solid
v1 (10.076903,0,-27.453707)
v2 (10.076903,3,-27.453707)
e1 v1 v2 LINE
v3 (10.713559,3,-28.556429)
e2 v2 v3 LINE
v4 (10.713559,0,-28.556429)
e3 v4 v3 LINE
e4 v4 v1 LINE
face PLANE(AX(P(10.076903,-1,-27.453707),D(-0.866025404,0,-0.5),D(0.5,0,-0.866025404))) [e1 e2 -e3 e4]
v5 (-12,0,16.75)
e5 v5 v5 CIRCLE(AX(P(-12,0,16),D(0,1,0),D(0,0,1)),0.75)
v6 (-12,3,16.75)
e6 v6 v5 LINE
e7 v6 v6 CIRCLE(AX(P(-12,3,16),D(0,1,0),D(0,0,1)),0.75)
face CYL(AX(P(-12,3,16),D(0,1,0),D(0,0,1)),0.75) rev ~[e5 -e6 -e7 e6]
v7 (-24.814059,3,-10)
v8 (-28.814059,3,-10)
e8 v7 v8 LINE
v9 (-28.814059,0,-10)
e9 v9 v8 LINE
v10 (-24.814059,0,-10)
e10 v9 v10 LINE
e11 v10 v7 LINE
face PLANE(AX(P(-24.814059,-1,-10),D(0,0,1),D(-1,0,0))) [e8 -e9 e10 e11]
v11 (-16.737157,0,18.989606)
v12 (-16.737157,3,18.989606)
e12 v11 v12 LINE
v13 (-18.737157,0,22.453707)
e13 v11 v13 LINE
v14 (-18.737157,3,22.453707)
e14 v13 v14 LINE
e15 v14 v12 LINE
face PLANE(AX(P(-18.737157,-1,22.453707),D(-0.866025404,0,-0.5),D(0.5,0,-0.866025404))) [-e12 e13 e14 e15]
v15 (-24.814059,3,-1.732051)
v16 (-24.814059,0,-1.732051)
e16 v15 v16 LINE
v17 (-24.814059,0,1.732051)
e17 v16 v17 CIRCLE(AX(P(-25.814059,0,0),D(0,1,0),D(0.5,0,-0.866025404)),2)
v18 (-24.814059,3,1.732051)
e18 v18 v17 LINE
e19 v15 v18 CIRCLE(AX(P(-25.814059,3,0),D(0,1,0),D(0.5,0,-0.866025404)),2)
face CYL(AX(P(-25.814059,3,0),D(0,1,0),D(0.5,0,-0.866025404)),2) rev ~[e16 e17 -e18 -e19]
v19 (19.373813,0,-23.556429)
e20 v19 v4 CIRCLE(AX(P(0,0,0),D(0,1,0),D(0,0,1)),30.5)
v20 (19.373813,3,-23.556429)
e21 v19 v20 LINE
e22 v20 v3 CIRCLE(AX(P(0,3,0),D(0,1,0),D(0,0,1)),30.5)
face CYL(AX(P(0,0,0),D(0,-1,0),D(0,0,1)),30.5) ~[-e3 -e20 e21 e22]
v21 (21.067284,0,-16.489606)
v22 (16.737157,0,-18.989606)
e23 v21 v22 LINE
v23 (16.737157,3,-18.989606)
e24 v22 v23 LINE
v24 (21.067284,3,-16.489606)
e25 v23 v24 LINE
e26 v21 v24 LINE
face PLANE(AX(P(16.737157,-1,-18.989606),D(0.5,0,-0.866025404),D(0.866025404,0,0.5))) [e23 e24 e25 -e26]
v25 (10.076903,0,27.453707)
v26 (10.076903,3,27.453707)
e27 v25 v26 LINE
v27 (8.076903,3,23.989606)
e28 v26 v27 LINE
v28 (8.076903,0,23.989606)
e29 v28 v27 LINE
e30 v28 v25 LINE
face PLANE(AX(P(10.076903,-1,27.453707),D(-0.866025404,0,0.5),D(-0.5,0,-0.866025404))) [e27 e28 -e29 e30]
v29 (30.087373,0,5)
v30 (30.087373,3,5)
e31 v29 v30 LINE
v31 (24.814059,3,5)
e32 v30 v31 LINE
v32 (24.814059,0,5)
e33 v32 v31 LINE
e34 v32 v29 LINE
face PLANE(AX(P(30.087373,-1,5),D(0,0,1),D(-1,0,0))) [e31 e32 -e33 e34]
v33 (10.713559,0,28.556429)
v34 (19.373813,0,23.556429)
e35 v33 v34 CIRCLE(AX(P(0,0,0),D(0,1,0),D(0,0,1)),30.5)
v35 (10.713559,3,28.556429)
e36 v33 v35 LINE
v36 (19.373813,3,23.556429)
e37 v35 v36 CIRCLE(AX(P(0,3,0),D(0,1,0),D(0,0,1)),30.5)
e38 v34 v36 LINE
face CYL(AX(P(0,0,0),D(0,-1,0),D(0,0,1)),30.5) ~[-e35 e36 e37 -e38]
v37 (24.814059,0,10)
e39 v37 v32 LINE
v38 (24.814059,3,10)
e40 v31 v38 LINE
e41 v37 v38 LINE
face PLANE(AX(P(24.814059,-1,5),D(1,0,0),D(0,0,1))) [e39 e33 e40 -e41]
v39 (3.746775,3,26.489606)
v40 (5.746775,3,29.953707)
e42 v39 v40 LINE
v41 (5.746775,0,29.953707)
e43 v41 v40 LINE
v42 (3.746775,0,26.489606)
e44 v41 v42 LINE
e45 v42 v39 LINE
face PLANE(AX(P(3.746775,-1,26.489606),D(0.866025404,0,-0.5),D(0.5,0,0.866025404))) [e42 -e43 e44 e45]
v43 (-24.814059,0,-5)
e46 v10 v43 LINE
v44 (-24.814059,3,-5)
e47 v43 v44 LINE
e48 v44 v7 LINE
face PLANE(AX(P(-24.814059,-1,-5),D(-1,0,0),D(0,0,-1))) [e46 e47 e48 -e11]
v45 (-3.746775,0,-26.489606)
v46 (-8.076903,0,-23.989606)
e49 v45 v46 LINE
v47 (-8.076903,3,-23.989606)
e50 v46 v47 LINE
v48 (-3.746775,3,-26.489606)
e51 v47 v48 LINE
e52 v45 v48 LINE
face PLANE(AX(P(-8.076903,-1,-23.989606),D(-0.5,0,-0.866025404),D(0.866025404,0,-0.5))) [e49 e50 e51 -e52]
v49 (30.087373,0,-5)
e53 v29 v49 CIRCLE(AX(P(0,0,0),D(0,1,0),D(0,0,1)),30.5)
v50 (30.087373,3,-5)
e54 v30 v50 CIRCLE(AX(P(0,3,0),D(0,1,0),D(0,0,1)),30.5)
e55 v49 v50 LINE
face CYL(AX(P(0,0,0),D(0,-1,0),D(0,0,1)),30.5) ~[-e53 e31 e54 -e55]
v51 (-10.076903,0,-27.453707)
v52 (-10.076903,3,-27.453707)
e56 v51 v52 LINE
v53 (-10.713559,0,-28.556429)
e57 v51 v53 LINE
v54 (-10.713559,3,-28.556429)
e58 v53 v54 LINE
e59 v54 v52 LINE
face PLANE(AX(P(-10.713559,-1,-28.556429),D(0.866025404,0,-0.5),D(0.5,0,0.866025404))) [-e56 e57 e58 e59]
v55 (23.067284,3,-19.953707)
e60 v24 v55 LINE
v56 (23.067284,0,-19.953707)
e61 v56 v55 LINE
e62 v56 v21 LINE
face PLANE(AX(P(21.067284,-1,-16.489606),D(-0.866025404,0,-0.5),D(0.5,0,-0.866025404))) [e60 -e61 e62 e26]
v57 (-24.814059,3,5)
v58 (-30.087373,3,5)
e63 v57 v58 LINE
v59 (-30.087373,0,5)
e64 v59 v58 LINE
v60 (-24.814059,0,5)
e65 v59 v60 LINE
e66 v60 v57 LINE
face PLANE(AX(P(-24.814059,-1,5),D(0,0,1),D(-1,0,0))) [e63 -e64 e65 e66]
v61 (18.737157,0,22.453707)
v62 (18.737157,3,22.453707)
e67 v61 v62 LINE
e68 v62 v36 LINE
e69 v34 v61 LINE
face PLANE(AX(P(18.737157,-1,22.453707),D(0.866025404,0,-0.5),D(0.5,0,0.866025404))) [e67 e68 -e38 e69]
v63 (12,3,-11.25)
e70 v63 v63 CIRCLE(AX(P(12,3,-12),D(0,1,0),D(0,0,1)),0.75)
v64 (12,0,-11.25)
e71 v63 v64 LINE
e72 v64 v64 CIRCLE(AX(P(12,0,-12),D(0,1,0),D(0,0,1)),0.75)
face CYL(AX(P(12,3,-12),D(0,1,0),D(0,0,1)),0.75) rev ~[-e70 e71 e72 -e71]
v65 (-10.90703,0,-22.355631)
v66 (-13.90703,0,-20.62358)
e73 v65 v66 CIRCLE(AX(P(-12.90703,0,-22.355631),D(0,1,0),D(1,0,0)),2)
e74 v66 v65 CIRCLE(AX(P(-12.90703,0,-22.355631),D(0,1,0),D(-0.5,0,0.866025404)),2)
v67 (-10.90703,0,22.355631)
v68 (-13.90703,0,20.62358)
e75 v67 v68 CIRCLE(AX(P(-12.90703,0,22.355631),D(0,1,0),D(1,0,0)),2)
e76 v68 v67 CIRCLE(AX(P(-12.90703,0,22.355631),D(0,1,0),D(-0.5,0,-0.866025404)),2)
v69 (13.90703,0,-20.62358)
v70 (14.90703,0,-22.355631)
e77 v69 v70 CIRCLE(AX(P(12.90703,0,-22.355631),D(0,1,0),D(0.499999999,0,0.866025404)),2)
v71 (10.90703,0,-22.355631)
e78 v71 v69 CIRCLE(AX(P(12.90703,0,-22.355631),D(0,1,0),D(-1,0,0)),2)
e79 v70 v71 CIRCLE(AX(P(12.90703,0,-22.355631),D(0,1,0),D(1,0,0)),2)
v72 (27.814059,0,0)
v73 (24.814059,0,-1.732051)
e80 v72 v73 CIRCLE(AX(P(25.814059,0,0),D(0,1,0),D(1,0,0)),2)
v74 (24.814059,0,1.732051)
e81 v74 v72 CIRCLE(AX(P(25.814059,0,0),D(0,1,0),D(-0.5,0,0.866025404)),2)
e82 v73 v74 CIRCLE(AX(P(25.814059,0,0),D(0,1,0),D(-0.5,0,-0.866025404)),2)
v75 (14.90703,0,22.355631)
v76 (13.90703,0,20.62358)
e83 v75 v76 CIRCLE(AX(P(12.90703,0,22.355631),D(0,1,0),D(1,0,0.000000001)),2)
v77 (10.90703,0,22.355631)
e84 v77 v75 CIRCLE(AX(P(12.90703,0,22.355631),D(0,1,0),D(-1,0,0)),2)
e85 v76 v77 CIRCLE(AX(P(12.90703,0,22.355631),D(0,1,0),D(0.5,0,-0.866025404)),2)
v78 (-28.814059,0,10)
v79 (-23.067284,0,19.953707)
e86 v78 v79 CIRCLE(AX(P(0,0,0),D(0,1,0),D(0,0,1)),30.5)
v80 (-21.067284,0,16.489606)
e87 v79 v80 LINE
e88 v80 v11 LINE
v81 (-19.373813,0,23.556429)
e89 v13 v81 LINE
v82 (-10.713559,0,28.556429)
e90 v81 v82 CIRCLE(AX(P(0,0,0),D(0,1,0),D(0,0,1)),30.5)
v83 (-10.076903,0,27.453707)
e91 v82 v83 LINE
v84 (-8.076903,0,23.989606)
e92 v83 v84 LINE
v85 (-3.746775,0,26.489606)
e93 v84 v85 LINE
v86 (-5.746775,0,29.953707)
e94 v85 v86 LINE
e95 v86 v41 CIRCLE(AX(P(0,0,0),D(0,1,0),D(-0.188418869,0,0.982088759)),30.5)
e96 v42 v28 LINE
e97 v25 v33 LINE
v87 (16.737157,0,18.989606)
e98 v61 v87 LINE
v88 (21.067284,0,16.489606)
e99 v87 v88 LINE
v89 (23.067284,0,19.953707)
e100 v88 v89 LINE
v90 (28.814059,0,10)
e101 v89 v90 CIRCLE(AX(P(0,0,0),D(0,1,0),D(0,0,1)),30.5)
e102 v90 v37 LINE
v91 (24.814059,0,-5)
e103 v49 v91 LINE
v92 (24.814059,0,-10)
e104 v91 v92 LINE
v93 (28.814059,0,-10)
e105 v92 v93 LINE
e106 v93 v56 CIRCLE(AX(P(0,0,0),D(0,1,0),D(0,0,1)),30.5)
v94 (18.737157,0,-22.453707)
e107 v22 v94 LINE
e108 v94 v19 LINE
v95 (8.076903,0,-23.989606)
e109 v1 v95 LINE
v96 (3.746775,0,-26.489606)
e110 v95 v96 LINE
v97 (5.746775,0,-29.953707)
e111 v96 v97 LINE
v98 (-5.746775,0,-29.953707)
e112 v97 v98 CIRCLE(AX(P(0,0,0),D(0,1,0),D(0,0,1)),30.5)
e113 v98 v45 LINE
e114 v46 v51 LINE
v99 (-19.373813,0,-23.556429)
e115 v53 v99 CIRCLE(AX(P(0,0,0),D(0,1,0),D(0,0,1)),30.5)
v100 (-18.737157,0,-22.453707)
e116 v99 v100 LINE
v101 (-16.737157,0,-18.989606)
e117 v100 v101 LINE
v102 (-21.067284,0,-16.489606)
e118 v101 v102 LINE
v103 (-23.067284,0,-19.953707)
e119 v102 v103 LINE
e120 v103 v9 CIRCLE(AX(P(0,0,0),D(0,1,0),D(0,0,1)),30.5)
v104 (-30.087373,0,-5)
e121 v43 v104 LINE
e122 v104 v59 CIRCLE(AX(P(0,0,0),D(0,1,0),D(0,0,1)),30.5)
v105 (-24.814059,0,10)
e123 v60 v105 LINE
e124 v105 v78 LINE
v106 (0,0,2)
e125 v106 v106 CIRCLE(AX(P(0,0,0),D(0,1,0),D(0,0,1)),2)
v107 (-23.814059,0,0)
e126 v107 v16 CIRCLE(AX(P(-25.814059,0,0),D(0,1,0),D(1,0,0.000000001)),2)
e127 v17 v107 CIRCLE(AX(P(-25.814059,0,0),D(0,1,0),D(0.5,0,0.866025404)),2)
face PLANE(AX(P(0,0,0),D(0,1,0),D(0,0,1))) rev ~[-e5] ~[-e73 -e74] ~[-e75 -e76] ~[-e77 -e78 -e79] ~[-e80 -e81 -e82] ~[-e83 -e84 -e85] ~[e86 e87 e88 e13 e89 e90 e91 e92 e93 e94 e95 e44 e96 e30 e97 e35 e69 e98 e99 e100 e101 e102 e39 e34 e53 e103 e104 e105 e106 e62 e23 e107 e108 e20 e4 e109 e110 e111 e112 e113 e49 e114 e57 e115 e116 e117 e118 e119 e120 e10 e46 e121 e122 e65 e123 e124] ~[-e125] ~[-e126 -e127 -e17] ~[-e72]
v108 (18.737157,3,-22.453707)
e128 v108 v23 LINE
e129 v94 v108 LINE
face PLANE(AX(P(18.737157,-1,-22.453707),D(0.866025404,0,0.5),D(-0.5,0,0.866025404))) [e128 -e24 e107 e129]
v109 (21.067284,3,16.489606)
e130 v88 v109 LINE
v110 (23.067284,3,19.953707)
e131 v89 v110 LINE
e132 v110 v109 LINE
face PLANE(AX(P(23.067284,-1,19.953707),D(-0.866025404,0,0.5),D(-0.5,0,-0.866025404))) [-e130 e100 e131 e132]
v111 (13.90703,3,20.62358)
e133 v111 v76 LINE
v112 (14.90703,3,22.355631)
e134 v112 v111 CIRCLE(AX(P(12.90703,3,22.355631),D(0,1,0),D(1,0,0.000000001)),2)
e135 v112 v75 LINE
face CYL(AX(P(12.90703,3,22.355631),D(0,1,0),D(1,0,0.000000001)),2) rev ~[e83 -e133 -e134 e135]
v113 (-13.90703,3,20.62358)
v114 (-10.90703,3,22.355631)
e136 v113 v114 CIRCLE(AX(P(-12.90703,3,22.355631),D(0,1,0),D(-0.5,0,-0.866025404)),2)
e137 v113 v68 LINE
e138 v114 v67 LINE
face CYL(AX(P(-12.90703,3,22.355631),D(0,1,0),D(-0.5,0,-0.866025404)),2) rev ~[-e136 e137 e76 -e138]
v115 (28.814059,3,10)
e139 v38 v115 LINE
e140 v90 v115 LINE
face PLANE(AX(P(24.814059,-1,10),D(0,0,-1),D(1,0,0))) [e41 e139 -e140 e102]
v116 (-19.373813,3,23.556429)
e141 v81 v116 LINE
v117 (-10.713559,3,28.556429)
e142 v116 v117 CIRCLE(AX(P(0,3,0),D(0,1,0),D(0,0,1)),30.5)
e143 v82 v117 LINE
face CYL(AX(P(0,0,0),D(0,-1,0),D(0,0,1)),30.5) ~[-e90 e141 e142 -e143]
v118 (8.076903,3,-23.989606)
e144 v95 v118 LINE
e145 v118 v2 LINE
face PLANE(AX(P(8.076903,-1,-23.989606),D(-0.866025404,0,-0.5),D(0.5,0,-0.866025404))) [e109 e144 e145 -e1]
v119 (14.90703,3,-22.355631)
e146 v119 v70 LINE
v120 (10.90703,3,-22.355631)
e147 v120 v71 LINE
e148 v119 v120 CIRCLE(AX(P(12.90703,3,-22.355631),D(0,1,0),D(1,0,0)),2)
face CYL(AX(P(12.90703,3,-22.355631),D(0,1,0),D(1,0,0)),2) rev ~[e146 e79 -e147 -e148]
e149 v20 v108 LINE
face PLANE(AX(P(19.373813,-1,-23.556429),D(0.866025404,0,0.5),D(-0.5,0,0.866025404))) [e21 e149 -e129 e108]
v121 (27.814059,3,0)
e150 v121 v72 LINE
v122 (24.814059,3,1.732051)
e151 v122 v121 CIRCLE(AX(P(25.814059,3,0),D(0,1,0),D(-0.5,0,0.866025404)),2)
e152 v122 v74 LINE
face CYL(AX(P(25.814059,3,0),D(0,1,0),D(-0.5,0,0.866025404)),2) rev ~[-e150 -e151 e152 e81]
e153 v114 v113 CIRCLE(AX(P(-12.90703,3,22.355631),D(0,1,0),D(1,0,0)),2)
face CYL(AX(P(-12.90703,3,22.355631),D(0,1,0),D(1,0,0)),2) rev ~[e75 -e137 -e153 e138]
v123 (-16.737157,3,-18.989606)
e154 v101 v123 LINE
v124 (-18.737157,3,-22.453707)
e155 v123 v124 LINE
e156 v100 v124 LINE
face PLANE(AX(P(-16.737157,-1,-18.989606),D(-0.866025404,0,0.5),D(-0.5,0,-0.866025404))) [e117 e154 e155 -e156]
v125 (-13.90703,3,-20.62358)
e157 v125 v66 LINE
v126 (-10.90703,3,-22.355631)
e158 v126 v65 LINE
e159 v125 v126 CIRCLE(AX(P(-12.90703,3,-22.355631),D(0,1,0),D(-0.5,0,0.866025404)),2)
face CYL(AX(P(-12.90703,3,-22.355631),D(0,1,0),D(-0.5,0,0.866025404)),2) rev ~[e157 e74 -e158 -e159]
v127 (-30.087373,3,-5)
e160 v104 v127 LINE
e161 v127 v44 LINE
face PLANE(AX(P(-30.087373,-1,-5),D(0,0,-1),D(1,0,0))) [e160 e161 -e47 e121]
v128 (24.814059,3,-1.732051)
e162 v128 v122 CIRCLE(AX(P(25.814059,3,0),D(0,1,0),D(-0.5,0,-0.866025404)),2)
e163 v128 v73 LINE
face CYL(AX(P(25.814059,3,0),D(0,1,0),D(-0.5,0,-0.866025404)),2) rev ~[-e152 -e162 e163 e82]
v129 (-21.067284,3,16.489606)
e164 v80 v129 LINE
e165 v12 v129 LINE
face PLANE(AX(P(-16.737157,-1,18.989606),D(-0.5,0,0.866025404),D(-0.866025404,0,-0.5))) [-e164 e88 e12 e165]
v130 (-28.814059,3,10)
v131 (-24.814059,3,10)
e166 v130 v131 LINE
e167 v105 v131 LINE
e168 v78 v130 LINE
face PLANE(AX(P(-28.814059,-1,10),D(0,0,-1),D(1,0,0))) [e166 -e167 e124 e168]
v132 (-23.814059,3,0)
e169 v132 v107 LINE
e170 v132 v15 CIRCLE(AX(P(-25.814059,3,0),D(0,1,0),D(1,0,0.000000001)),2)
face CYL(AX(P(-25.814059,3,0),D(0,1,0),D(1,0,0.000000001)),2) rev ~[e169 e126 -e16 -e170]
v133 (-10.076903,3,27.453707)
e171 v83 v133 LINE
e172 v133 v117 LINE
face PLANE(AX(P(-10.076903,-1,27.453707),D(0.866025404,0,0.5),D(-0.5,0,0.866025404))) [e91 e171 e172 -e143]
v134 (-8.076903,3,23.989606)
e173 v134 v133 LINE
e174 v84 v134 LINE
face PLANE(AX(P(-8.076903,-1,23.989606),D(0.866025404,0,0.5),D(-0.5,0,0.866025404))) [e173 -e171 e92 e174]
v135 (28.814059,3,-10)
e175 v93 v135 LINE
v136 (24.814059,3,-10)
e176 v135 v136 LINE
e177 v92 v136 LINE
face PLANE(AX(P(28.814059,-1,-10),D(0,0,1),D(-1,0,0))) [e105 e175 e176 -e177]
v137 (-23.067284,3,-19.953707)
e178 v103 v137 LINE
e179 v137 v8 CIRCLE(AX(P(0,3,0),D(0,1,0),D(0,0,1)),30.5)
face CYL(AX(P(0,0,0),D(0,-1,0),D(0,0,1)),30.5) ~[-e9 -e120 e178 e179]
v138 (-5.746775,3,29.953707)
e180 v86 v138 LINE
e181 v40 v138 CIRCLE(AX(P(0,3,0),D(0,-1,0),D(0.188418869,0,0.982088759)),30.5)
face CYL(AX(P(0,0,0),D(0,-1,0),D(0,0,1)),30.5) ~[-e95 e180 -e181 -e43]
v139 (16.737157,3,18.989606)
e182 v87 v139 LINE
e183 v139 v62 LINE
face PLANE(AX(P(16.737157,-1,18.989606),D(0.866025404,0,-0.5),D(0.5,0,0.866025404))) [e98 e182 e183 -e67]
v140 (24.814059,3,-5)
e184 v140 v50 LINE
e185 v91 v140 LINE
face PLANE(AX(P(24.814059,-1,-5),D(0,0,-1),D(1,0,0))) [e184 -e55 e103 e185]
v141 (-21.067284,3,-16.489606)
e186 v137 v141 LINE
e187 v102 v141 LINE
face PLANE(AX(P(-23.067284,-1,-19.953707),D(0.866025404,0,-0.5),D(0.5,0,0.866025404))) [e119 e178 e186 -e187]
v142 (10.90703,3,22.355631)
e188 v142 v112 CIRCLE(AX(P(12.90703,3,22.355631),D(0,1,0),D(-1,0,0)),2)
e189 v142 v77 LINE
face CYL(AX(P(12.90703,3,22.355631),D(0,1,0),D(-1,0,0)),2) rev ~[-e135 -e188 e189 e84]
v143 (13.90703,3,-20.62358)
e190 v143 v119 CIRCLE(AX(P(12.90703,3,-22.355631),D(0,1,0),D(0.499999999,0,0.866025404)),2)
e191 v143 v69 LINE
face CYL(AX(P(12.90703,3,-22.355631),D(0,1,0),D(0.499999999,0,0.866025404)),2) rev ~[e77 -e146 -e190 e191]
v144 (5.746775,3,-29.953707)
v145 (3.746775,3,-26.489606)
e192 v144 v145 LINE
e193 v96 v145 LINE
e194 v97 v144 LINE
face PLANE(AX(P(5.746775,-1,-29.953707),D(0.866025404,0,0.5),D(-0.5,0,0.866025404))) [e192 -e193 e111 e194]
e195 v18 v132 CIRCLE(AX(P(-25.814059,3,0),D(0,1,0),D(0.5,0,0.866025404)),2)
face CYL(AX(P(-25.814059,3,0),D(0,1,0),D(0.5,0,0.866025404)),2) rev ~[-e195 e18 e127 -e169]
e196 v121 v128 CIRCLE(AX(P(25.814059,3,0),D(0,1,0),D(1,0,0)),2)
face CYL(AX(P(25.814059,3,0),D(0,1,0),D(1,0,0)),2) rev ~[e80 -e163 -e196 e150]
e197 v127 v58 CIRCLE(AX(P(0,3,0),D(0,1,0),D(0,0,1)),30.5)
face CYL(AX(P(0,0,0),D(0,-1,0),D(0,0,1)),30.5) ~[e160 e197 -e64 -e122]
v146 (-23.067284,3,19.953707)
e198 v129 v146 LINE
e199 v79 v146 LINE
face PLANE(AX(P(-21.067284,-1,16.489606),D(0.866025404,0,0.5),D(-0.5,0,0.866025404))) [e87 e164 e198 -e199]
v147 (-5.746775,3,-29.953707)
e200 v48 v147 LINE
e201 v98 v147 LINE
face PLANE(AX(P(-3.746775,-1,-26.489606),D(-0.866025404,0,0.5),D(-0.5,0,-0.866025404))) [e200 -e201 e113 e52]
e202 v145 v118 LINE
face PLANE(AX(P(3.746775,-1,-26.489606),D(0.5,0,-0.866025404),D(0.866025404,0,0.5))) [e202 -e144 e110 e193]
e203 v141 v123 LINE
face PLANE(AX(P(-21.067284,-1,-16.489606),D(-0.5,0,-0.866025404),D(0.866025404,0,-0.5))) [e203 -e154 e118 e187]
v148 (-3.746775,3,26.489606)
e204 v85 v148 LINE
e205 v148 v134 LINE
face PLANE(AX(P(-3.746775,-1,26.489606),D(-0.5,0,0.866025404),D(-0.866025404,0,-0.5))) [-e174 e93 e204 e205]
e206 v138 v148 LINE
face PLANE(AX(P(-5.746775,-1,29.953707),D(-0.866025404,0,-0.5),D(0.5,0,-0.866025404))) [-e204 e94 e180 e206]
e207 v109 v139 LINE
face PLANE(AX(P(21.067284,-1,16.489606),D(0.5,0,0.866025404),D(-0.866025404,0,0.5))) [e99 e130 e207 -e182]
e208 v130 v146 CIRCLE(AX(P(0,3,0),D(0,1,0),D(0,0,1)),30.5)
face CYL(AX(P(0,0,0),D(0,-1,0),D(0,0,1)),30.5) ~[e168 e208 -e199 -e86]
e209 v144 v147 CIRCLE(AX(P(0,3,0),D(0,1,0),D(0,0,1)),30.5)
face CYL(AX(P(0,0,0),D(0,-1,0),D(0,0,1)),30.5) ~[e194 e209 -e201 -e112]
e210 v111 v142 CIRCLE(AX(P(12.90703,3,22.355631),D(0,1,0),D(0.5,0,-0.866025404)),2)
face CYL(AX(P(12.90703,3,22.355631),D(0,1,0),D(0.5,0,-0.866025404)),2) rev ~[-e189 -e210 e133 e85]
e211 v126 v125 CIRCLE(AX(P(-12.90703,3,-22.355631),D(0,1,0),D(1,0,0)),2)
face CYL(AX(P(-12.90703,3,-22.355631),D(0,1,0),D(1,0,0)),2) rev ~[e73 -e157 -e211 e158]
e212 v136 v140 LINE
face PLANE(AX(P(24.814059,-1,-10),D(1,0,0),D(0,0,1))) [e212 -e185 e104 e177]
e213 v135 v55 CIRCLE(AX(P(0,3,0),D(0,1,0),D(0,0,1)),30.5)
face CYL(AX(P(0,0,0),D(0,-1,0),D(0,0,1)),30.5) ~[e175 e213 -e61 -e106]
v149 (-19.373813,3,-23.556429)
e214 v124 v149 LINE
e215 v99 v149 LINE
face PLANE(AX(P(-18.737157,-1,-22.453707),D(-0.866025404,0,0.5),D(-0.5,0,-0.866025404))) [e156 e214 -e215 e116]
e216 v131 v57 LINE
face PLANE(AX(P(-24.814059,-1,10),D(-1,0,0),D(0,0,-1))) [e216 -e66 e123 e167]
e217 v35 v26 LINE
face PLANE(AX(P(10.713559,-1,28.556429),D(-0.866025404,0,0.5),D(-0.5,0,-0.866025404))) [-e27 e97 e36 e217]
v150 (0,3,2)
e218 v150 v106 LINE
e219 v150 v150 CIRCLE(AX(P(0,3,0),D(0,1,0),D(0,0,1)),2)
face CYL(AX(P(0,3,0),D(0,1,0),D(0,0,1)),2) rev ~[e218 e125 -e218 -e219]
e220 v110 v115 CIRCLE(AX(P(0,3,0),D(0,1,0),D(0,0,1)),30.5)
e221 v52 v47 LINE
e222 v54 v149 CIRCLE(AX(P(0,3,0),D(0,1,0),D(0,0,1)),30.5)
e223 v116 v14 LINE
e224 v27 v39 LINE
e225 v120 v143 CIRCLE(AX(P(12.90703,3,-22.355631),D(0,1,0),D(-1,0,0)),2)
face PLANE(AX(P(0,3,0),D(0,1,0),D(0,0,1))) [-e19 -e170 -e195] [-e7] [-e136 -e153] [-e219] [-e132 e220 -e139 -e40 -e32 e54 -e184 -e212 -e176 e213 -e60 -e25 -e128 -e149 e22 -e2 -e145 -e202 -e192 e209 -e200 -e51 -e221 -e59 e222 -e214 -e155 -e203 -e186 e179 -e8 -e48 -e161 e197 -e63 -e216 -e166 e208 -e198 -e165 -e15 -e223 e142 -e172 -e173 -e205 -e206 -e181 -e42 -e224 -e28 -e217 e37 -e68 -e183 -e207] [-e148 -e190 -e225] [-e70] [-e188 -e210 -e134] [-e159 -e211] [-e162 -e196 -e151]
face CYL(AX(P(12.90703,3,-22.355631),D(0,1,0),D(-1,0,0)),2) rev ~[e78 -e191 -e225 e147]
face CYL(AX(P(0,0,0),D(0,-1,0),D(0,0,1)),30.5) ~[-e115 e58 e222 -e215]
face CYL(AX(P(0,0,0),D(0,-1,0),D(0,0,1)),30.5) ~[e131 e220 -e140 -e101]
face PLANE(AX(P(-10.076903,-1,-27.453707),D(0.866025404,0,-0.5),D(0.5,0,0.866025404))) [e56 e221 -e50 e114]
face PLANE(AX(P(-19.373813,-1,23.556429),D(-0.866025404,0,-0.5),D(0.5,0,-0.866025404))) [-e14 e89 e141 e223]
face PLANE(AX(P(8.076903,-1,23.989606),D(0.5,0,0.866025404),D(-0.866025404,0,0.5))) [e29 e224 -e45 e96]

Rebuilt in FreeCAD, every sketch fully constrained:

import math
import FreeCAD as App
import Part
import Sketcher
Q = App.Units.Quantity

doc = App.newDocument("Part")
body = doc.addObject("PartDesign::Body", "Body")

sketch1 = body.newObject("Sketcher::SketchObject", "Sketch")
sketch1.AttachmentSupport = (doc.getObject("XZ_Plane"), [""])
sketch1.MapMode = "FlatFace"
sketch1.addGeometry(Part.Circle(App.Vector(0, 0, 0), App.Vector(0, 0, 1), 30), False)
sketch1.addConstraint([
    Sketcher.Constraint("Coincident", 0, 3, -1, 1),
    Sketcher.Constraint("Diameter", 0, Q("61 mm")),
])
pad1 = body.newObject("PartDesign::Pad", "Pad")
pad1.Profile = sketch1
pad1.Length = 3
pad1.Reversed = True

sketch2 = body.newObject("Sketcher::SketchObject", "Sketch001")
sketch2.AttachmentSupport = (doc.getObject("XZ_Plane"), [""])
sketch2.MapMode = "FlatFace"
sketch2.AttachmentOffset = App.Placement(App.Vector(0, 0, -3), App.Rotation())
sketch2.addGeometry(Part.Circle(App.Vector(0, 0, 0), App.Vector(0, 0, 1), 2), False)
sketch2.addConstraint([
    Sketcher.Constraint("Coincident", 0, 3, -1, 1),
    Sketcher.Constraint("Diameter", 0, Q("4 mm")),
])
pocket1 = body.newObject("PartDesign::Pocket", "Pocket")
pocket1.Profile = sketch2
pocket1.Length = 4
pocket1.Reversed = True

sketch3 = body.newObject("Sketcher::SketchObject", "Sketch002")
sketch3.AttachmentSupport = (doc.getObject("XZ_Plane"), [""])
sketch3.MapMode = "FlatFace"
sketch3.AttachmentOffset = App.Placement(App.Vector(0, 0, 1), App.Rotation())
sketch3.addGeometry([
    Part.ArcOfCircle(Part.Circle(App.Vector(0, 0, 0), App.Vector(0, 0, 1), 30.5), math.radians(-170.56), math.radians(-160.86)),
    Part.LineSegment(App.Vector(-30.1, -5, 0), App.Vector(-24.8, -5, 0)),
    Part.LineSegment(App.Vector(-24.8, -5, 0), App.Vector(-24.8, -10, 0)),
    Part.LineSegment(App.Vector(-24.8, -10, 0), App.Vector(-28.8, -10, 0)),
    Part.ArcOfCircle(Part.Circle(App.Vector(0, 0, 0), App.Vector(0, 0, 1), 30.5), math.radians(-19.14), math.radians(-9.44)),
    Part.LineSegment(App.Vector(28.8, -10, 0), App.Vector(24.8, -10, 0)),
    Part.LineSegment(App.Vector(24.8, -10, 0), App.Vector(24.8, -5, 0)),
    Part.LineSegment(App.Vector(24.8, -5, 0), App.Vector(30.1, -5, 0)),
    Part.LineSegment(App.Vector(30.1, 5, 0), App.Vector(24.8, 5, 0)),
    Part.LineSegment(App.Vector(24.8, 5, 0), App.Vector(24.8, 10, 0)),
    Part.LineSegment(App.Vector(24.8, 10, 0), App.Vector(28.8, 10, 0)),
    Part.ArcOfCircle(Part.Circle(App.Vector(0, 0, 0), App.Vector(0, 0, 1), 30.5), math.radians(9.44), math.radians(19.14)),
    Part.ArcOfCircle(Part.Circle(App.Vector(0, 0, 0), App.Vector(0, 0, 1), 30.5), math.radians(40.86), math.radians(50.56)),
    Part.LineSegment(App.Vector(23.1, 20, 0), App.Vector(21.1, 16.5, 0)),
    Part.LineSegment(App.Vector(21.1, 16.5, 0), App.Vector(16.7, 19, 0)),
    Part.LineSegment(App.Vector(16.7, 19, 0), App.Vector(18.7, 22.5, 0)),
    Part.LineSegment(App.Vector(18.7, 22.5, 0), App.Vector(19.4, 23.6, 0)),
    Part.ArcOfCircle(Part.Circle(App.Vector(0, 0, 0), App.Vector(0, 0, 1), 30.5), math.radians(69.44), math.radians(79.14)),
    Part.LineSegment(App.Vector(10.7, 28.6, 0), App.Vector(10.1, 27.5, 0)),
    Part.LineSegment(App.Vector(10.1, 27.5, 0), App.Vector(8.1, 24, 0)),
    Part.LineSegment(App.Vector(8.1, 24, 0), App.Vector(3.7, 26.5, 0)),
    Part.LineSegment(App.Vector(3.7, 26.5, 0), App.Vector(5.7, 30, 0)),
    Part.ArcOfCircle(Part.Circle(App.Vector(0, 0, 0), App.Vector(0, 0, 1), 30.5), math.radians(100.86), math.radians(110.56)),
    Part.LineSegment(App.Vector(-5.7, 30, 0), App.Vector(-3.7, 26.5, 0)),
    Part.LineSegment(App.Vector(-3.7, 26.5, 0), App.Vector(-8.1, 24, 0)),
    Part.LineSegment(App.Vector(-8.1, 24, 0), App.Vector(-10.1, 27.5, 0)),
    Part.LineSegment(App.Vector(-10.1, 27.5, 0), App.Vector(-10.7, 28.6, 0)),
    Part.ArcOfCircle(Part.Circle(App.Vector(0, 0, 0), App.Vector(0, 0, 1), 30.5), math.radians(129.44), math.radians(139.14)),
    Part.LineSegment(App.Vector(-19.4, 23.6, 0), App.Vector(-18.7, 22.5, 0)),
    Part.LineSegment(App.Vector(-18.7, 22.5, 0), App.Vector(-16.7, 19, 0)),
    Part.LineSegment(App.Vector(-16.7, 19, 0), App.Vector(-21.1, 16.5, 0)),
    Part.LineSegment(App.Vector(-21.1, 16.5, 0), App.Vector(-23.1, 20, 0)),
    Part.ArcOfCircle(Part.Circle(App.Vector(0, 0, 0), App.Vector(0, 0, 1), 30.5), math.radians(160.86), math.radians(170.56)),
    Part.LineSegment(App.Vector(-28.8, 10, 0), App.Vector(-24.8, 10, 0)),
    Part.LineSegment(App.Vector(-24.8, 10, 0), App.Vector(-24.8, 5, 0)),
    Part.LineSegment(App.Vector(-24.8, 5, 0), App.Vector(-30.1, 5, 0)),
    Part.LineSegment(App.Vector(-18.7, -22.5, 0), App.Vector(-19.4, -23.6, 0)),
    Part.ArcOfCircle(Part.Circle(App.Vector(0, 0, 0), App.Vector(0, 0, 1), 30.5), math.radians(-139.14), math.radians(-129.44)),
    Part.LineSegment(App.Vector(-23.1, -20, 0), App.Vector(-21.1, -16.5, 0)),
    Part.LineSegment(App.Vector(-21.1, -16.5, 0), App.Vector(-16.7, -19, 0)),
    Part.LineSegment(App.Vector(-16.7, -19, 0), App.Vector(-18.7, -22.5, 0)),
    Part.LineSegment(App.Vector(-3.7, -26.5, 0), App.Vector(-5.7, -30, 0)),
    Part.ArcOfCircle(Part.Circle(App.Vector(0, 0, 0), App.Vector(0, 0, 1), 30.5), math.radians(-110.56), math.radians(-100.86)),
    Part.LineSegment(App.Vector(-10.7, -28.6, 0), App.Vector(-10.1, -27.5, 0)),
    Part.LineSegment(App.Vector(-10.1, -27.5, 0), App.Vector(-8.1, -24, 0)),
    Part.LineSegment(App.Vector(-8.1, -24, 0), App.Vector(-3.7, -26.5, 0)),
    Part.LineSegment(App.Vector(10.1, -27.5, 0), App.Vector(10.7, -28.6, 0)),
    Part.ArcOfCircle(Part.Circle(App.Vector(0, 0, 0), App.Vector(0, 0, 1), 30.5), math.radians(-79.14), math.radians(-69.44)),
    Part.LineSegment(App.Vector(5.7, -30, 0), App.Vector(3.7, -26.5, 0)),
    Part.LineSegment(App.Vector(3.7, -26.5, 0), App.Vector(8.1, -24, 0)),
    Part.LineSegment(App.Vector(8.1, -24, 0), App.Vector(10.1, -27.5, 0)),
    Part.LineSegment(App.Vector(21.1, -16.5, 0), App.Vector(23.1, -20, 0)),
    Part.ArcOfCircle(Part.Circle(App.Vector(0, 0, 0), App.Vector(0, 0, 1), 30.5), math.radians(-50.56), math.radians(-40.86)),
    Part.LineSegment(App.Vector(19.4, -23.6, 0), App.Vector(18.7, -22.5, 0)),
    Part.LineSegment(App.Vector(18.7, -22.5, 0), App.Vector(16.7, -19, 0)),
    Part.LineSegment(App.Vector(16.7, -19, 0), App.Vector(21.1, -16.5, 0)),
], False)
sketch3.addConstraint([
    Sketcher.Constraint("Coincident", 0, 1, 1, 1),
    Sketcher.Constraint("Coincident", 1, 2, 2, 1),
    Sketcher.Constraint("Coincident", 2, 2, 3, 1),
    Sketcher.Constraint("Coincident", 3, 2, 0, 2),
    Sketcher.Constraint("Coincident", 4, 1, 5, 1),
    Sketcher.Constraint("Coincident", 5, 2, 6, 1),
    Sketcher.Constraint("Coincident", 6, 2, 7, 1),
    Sketcher.Constraint("Coincident", 7, 2, 4, 2),
    Sketcher.Constraint("Coincident", 8, 2, 9, 1),
    Sketcher.Constraint("Coincident", 9, 2, 10, 1),
    Sketcher.Constraint("Coincident", 10, 2, 11, 2),
    Sketcher.Constraint("Coincident", 11, 1, 8, 1),
    Sketcher.Constraint("Coincident", 12, 1, 13, 1),
    Sketcher.Constraint("Coincident", 13, 2, 14, 1),
    Sketcher.Constraint("Coincident", 14, 2, 15, 1),
    Sketcher.Constraint("Coincident", 15, 2, 16, 1),
    Sketcher.Constraint("Coincident", 16, 2, 12, 2),
    Sketcher.Constraint("Coincident", 17, 1, 18, 1),
    Sketcher.Constraint("Coincident", 18, 2, 19, 1),
    Sketcher.Constraint("Coincident", 19, 2, 20, 1),
    Sketcher.Constraint("Coincident", 20, 2, 21, 1),
    Sketcher.Constraint("Coincident", 21, 2, 17, 2),
    Sketcher.Constraint("Coincident", 22, 1, 23, 1),
    Sketcher.Constraint("Coincident", 23, 2, 24, 1),
    Sketcher.Constraint("Coincident", 24, 2, 25, 1),
    Sketcher.Constraint("Coincident", 25, 2, 26, 1),
    Sketcher.Constraint("Coincident", 26, 2, 22, 2),
    Sketcher.Constraint("Coincident", 27, 1, 28, 1),
    Sketcher.Constraint("Coincident", 28, 2, 29, 1),
    Sketcher.Constraint("Coincident", 29, 2, 30, 1),
    Sketcher.Constraint("Coincident", 30, 2, 31, 1),
    Sketcher.Constraint("Coincident", 31, 2, 27, 2),
    Sketcher.Constraint("Coincident", 32, 1, 33, 1),
    Sketcher.Constraint("Coincident", 33, 2, 34, 1),
    Sketcher.Constraint("Coincident", 34, 2, 35, 1),
    Sketcher.Constraint("Coincident", 35, 2, 32, 2),
    Sketcher.Constraint("Coincident", 36, 2, 37, 2),
    Sketcher.Constraint("Coincident", 37, 1, 38, 1),
    Sketcher.Constraint("Coincident", 38, 2, 39, 1),
    Sketcher.Constraint("Coincident", 39, 2, 40, 1),
    Sketcher.Constraint("Coincident", 40, 2, 36, 1),
    Sketcher.Constraint("Coincident", 41, 2, 42, 2),
    Sketcher.Constraint("Coincident", 42, 1, 43, 1),
    Sketcher.Constraint("Coincident", 43, 2, 44, 1),
    Sketcher.Constraint("Coincident", 44, 2, 45, 1),
    Sketcher.Constraint("Coincident", 45, 2, 41, 1),
    Sketcher.Constraint("Coincident", 46, 2, 47, 2),
    Sketcher.Constraint("Coincident", 47, 1, 48, 1),
    Sketcher.Constraint("Coincident", 48, 2, 49, 1),
    Sketcher.Constraint("Coincident", 49, 2, 50, 1),
    Sketcher.Constraint("Coincident", 50, 2, 46, 1),
    Sketcher.Constraint("Coincident", 51, 2, 52, 2),
    Sketcher.Constraint("Coincident", 52, 1, 53, 1),
    Sketcher.Constraint("Coincident", 53, 2, 54, 1),
    Sketcher.Constraint("Coincident", 54, 2, 55, 1),
    Sketcher.Constraint("Coincident", 55, 2, 51, 1),
    Sketcher.Constraint("Horizontal", 1),
    Sketcher.Constraint("Vertical", 2),
    Sketcher.Constraint("Horizontal", 3),
    Sketcher.Constraint("Horizontal", 5),
    Sketcher.Constraint("Vertical", 6),
    Sketcher.Constraint("Horizontal", 7),
    Sketcher.Constraint("Horizontal", 8),
    Sketcher.Constraint("Vertical", 9),
    Sketcher.Constraint("Horizontal", 10),
    Sketcher.Constraint("Horizontal", 33),
    Sketcher.Constraint("Vertical", 34),
    Sketcher.Constraint("Horizontal", 35),
    Sketcher.Constraint("Coincident", 0, 3, -1, 1),
    Sketcher.Constraint("Coincident", 4, 3, -1, 1),
    Sketcher.Constraint("Coincident", 11, 3, -1, 1),
    Sketcher.Constraint("Coincident", 12, 3, -1, 1),
    Sketcher.Constraint("Coincident", 17, 3, -1, 1),
    Sketcher.Constraint("Coincident", 22, 3, -1, 1),
    Sketcher.Constraint("Coincident", 27, 3, -1, 1),
    Sketcher.Constraint("Coincident", 32, 3, -1, 1),
    Sketcher.Constraint("Coincident", 37, 3, -1, 1),
    Sketcher.Constraint("Coincident", 42, 3, -1, 1),
    Sketcher.Constraint("Coincident", 47, 3, -1, 1),
    Sketcher.Constraint("Coincident", 52, 3, -1, 1),
    Sketcher.Constraint("Equal", 0, 4),
    Sketcher.Constraint("Equal", 4, 11),
    Sketcher.Constraint("Equal", 11, 12),
    Sketcher.Constraint("Equal", 12, 17),
    Sketcher.Constraint("Equal", 17, 22),
    Sketcher.Constraint("Equal", 22, 27),
    Sketcher.Constraint("Equal", 27, 32),
    Sketcher.Constraint("Equal", 32, 37),
    Sketcher.Constraint("Equal", 37, 42),
    Sketcher.Constraint("Equal", 42, 47),
    Sketcher.Constraint("Equal", 47, 52),
    Sketcher.Constraint("Symmetric", 1, 2, 8, 2, -1, 1),
    Sketcher.Constraint("Symmetric", 5, 2, 33, 2, -1, 1),
    Sketcher.Constraint("Symmetric", 13, 2, 38, 2, -1, 1),
    Sketcher.Constraint("Symmetric", 14, 2, 39, 2, -1, 1),
    Sketcher.Constraint("Symmetric", 15, 2, 40, 2, -1, 1),
    Sketcher.Constraint("Symmetric", 18, 2, 43, 2, -1, 1),
    Sketcher.Constraint("Symmetric", 19, 2, 44, 2, -1, 1),
    Sketcher.Constraint("Symmetric", 20, 2, 45, 2, -1, 1),
    Sketcher.Constraint("Symmetric", 23, 2, 48, 2, -1, 1),
    Sketcher.Constraint("Symmetric", 24, 2, 49, 2, -1, 1),
    Sketcher.Constraint("Symmetric", 25, 2, 50, 2, -1, 1),
    Sketcher.Constraint("Symmetric", 28, 2, 53, 2, -1, 1),
    Sketcher.Constraint("Symmetric", 29, 2, 54, 2, -1, 1),
    Sketcher.Constraint("Symmetric", 30, 2, 55, 2, -1, 1),
    Sketcher.Constraint("Symmetric", 2, 2, 5, 2, -2),
    Sketcher.Constraint("Symmetric", 20, 2, 23, 2, -2),
    Sketcher.Constraint("Symmetric", 19, 2, 24, 2, -2),
    Sketcher.Constraint("Symmetric", 18, 2, 25, 2, -2),
    Sketcher.Constraint("Symmetric", 15, 2, 28, 2, -2),
    Sketcher.Constraint("Symmetric", 14, 2, 29, 2, -2),
    Sketcher.Constraint("Symmetric", 13, 2, 30, 2, -2),
    Sketcher.Constraint("Perpendicular", 13, 14),
    Sketcher.Constraint("Perpendicular", 14, 15),
    Sketcher.Constraint("Parallel", 15, 16),
    Sketcher.Constraint("Parallel", 16, 18),
    Sketcher.Constraint("Parallel", 18, 19),
    Sketcher.Constraint("Perpendicular", 19, 20),
    Sketcher.Constraint("Perpendicular", 20, 21),
    Sketcher.Constraint("Perpendicular", 23, 24),
    Sketcher.Constraint("Parallel", 25, 26),
    Sketcher.Constraint("Parallel", 26, 28),
    Sketcher.Constraint("Perpendicular", 30, 31),
    Sketcher.Constraint("Parallel", 21, 36),
    Sketcher.Constraint("Parallel", 36, 38),
    Sketcher.Constraint("Parallel", 40, 41),
    Sketcher.Constraint("Parallel", 41, 43),
    Sketcher.Constraint("Parallel", 31, 46),
    Sketcher.Constraint("Parallel", 46, 48),
    Sketcher.Constraint("Parallel", 50, 51),
    Sketcher.Constraint("Parallel", 51, 53),
    Sketcher.Constraint("Horizontal", 1, 2, 6, 2),
    Sketcher.Constraint("Horizontal", 10, 2, 32, 1),
    Sketcher.Constraint("Horizontal", 11, 1, 34, 2),
    Sketcher.Constraint("Equal", 13, 15),
    Sketcher.Constraint("Equal", 16, 18),
    Sketcher.Constraint("Equal", 15, 19),
    Sketcher.Constraint("Equal", 14, 20),
    Sketcher.Constraint("Equal", 19, 21),
    Sketcher.Constraint("Radius", 0, Q("30.5 mm")),
    Sketcher.Constraint("DistanceX", 3, 2, 3, 1, Q("4 mm")),
    Sketcher.Constraint("DistanceY", 2, 2, 2, 1, Q("5 mm")),
    Sketcher.Constraint("Angle", 13, Q("-120 deg")),
    Sketcher.Constraint("Distance", 13, Q("4 mm")),
    Sketcher.Constraint("Distance", 14, Q("5 mm")),
    Sketcher.Constraint("DistanceY", 0, 1, -1, 1, Q("5 mm")),
    Sketcher.Constraint("DistanceY", -1, 1, 16, 2, Q("23.556429 mm")),
])
pocket2 = body.newObject("PartDesign::Pocket", "Pocket001")
pocket2.Profile = sketch3
pocket2.Length = 4

sketch4 = body.newObject("Sketcher::SketchObject", "Sketch003")
sketch4.AttachmentSupport = (doc.getObject("XZ_Plane"), [""])
sketch4.MapMode = "FlatFace"
sketch4.AttachmentOffset = App.Placement(App.Vector(0, 0, -3), App.Rotation())
sketch4.addGeometry([
    Part.ArcOfCircle(Part.Circle(App.Vector(-12.9, -22.4, 0), App.Vector(0, 0, 1), 2), math.radians(0), math.radians(120)),
    Part.ArcOfCircle(Part.Circle(App.Vector(-12.9, -22.4, 0), App.Vector(0, 0, 1), 2), math.radians(120), math.radians(360)),
    Part.ArcOfCircle(Part.Circle(App.Vector(-25.8, 0, 0), App.Vector(0, 0, 1), 2), math.radians(-60), math.radians(0)),
    Part.ArcOfCircle(Part.Circle(App.Vector(-25.8, 0, 0), App.Vector(0, 0, 1), 2), math.radians(60), math.radians(300)),
    Part.ArcOfCircle(Part.Circle(App.Vector(-25.8, 0, 0), App.Vector(0, 0, 1), 2), math.radians(0), math.radians(60)),
    Part.ArcOfCircle(Part.Circle(App.Vector(12.9, -22.4, 0), App.Vector(0, 0, 1), 2), math.radians(60), math.radians(180)),
    Part.ArcOfCircle(Part.Circle(App.Vector(12.9, -22.4, 0), App.Vector(0, 0, 1), 2), math.radians(0), math.radians(60)),
    Part.ArcOfCircle(Part.Circle(App.Vector(12.9, -22.4, 0), App.Vector(0, 0, 1), 2), math.radians(180), math.radians(360)),
    Part.ArcOfCircle(Part.Circle(App.Vector(25.8, 0, 0), App.Vector(0, 0, 1), 2), math.radians(120), math.radians(240)),
    Part.ArcOfCircle(Part.Circle(App.Vector(25.8, 0, 0), App.Vector(0, 0, 1), 2), math.radians(0), math.radians(120)),
    Part.ArcOfCircle(Part.Circle(App.Vector(25.8, 0, 0), App.Vector(0, 0, 1), 2), math.radians(-120), math.radians(0)),
    Part.ArcOfCircle(Part.Circle(App.Vector(-12.9, 22.4, 0), App.Vector(0, 0, 1), 2), math.radians(0), math.radians(240)),
    Part.ArcOfCircle(Part.Circle(App.Vector(-12.9, 22.4, 0), App.Vector(0, 0, 1), 2), math.radians(-120), math.radians(0)),
    Part.ArcOfCircle(Part.Circle(App.Vector(12.9, 22.4, 0), App.Vector(0, 0, 1), 2), math.radians(-60), math.radians(0)),
    Part.ArcOfCircle(Part.Circle(App.Vector(12.9, 22.4, 0), App.Vector(0, 0, 1), 2), math.radians(-180), math.radians(-60)),
    Part.ArcOfCircle(Part.Circle(App.Vector(12.9, 22.4, 0), App.Vector(0, 0, 1), 2), math.radians(0), math.radians(180)),
], False)
sketch4.addConstraint([
    Sketcher.Constraint("Tangent", 0, 1, 1, 2),
    Sketcher.Constraint("Coincident", 1, 1, 0, 2),
    Sketcher.Constraint("Tangent", 2, 1, 3, 2),
    Sketcher.Constraint("Tangent", 3, 1, 4, 2),
    Sketcher.Constraint("Tangent", 4, 1, 2, 2),
    Sketcher.Constraint("Tangent", 5, 1, 6, 2),
    Sketcher.Constraint("Tangent", 6, 1, 7, 2),
    Sketcher.Constraint("Tangent", 7, 1, 5, 2),
    Sketcher.Constraint("Tangent", 8, 1, 9, 2),
    Sketcher.Constraint("Tangent", 9, 1, 10, 2),
    Sketcher.Constraint("Tangent", 10, 1, 8, 2),
    Sketcher.Constraint("Tangent", 11, 1, 12, 2),
    Sketcher.Constraint("Coincident", 12, 1, 11, 2),
    Sketcher.Constraint("Tangent", 13, 1, 14, 2),
    Sketcher.Constraint("Tangent", 14, 1, 15, 2),
    Sketcher.Constraint("Tangent", 15, 1, 13, 2),
    Sketcher.Constraint("Equal", 1, 2),
    Sketcher.Constraint("Equal", 4, 5),
    Sketcher.Constraint("Equal", 7, 8),
    Sketcher.Constraint("Equal", 10, 11),
    Sketcher.Constraint("Equal", 12, 13),
    Sketcher.Constraint("Symmetric", 2, 3, 8, 3, -1, 1),
    Sketcher.Constraint("Symmetric", 5, 3, 11, 3, -1, 1),
    Sketcher.Constraint("Symmetric", 0, 3, 13, 3, -1, 1),
    Sketcher.Constraint("Symmetric", 0, 3, 5, 3, -2),
    Sketcher.Constraint("Symmetric", 3, 1, 8, 1, -2),
    Sketcher.Constraint("PointOnObject", 4, 1, -1),
    Sketcher.Constraint("PointOnObject", 9, 1, -1),
    Sketcher.Constraint("Horizontal", 7, 3, 0, 1),
    Sketcher.Constraint("Horizontal", 1, 1, 5, 1),
    Sketcher.Constraint("Horizontal", 0, 1, 6, 1),
    Sketcher.Constraint("Horizontal", 6, 1, 7, 1),
    Sketcher.Constraint("Horizontal", 2, 1, 10, 1),
    Sketcher.Constraint("Horizontal", 15, 3, 11, 1),
    Sketcher.Constraint("Horizontal", 12, 1, 13, 1),
    Sketcher.Constraint("Horizontal", 11, 1, 14, 1),
    Sketcher.Constraint("Horizontal", 14, 1, 15, 1),
    Sketcher.Constraint("Vertical", 2, 1, 3, 1),
    Sketcher.Constraint("Vertical", 1, 1, 12, 1),
    Sketcher.Constraint("Radius", 0, Q("2 mm")),
    Sketcher.Constraint("DistanceX", 1, 1, 0, 3, Q("1 mm")),
    Sketcher.Constraint("DistanceX", 2, 3, 2, 1, Q("1 mm")),
    Sketcher.Constraint("DistanceX", 0, 3, -1, 1, Q("12.90703 mm")),
    Sketcher.Constraint("DistanceY", 0, 3, -1, 1, Q("22.355631 mm")),
    Sketcher.Constraint("DistanceX", 2, 3, -1, 1, Q("25.814059 mm")),
])
pocket3 = body.newObject("PartDesign::Pocket", "Pocket002")
pocket3.Profile = sketch4
pocket3.Length = 10
pocket3.Reversed = True

sketch5 = body.newObject("Sketcher::SketchObject", "Sketch004")
sketch5.AttachmentSupport = (doc.getObject("XZ_Plane"), [""])
sketch5.MapMode = "FlatFace"
sketch5.AttachmentOffset = App.Placement(App.Vector(0, 0, -3), App.Rotation())
sketch5.addGeometry([
    Part.Circle(App.Vector(12, -12, 0), App.Vector(0, 0, 1), 0.8),
    Part.Circle(App.Vector(-12, 16, 0), App.Vector(0, 0, 1), 0.8),
], False)
sketch5.addConstraint([
    Sketcher.Constraint("Equal", 0, 1),
    Sketcher.Constraint("Diameter", 0, Q("1.5 mm")),
    Sketcher.Constraint("DistanceX", -1, 1, 0, 3, Q("12 mm")),
    Sketcher.Constraint("DistanceY", 0, 3, -1, 1, Q("12 mm")),
    Sketcher.Constraint("DistanceX", 1, 3, -1, 1, Q("12 mm")),
    Sketcher.Constraint("DistanceY", -1, 1, 1, 3, Q("16 mm")),
])
pocket4 = body.newObject("PartDesign::Pocket", "Pocket003")
pocket4.Profile = sketch5
pocket4.Length = 3
pocket4.Reversed = True

doc.recompute()
